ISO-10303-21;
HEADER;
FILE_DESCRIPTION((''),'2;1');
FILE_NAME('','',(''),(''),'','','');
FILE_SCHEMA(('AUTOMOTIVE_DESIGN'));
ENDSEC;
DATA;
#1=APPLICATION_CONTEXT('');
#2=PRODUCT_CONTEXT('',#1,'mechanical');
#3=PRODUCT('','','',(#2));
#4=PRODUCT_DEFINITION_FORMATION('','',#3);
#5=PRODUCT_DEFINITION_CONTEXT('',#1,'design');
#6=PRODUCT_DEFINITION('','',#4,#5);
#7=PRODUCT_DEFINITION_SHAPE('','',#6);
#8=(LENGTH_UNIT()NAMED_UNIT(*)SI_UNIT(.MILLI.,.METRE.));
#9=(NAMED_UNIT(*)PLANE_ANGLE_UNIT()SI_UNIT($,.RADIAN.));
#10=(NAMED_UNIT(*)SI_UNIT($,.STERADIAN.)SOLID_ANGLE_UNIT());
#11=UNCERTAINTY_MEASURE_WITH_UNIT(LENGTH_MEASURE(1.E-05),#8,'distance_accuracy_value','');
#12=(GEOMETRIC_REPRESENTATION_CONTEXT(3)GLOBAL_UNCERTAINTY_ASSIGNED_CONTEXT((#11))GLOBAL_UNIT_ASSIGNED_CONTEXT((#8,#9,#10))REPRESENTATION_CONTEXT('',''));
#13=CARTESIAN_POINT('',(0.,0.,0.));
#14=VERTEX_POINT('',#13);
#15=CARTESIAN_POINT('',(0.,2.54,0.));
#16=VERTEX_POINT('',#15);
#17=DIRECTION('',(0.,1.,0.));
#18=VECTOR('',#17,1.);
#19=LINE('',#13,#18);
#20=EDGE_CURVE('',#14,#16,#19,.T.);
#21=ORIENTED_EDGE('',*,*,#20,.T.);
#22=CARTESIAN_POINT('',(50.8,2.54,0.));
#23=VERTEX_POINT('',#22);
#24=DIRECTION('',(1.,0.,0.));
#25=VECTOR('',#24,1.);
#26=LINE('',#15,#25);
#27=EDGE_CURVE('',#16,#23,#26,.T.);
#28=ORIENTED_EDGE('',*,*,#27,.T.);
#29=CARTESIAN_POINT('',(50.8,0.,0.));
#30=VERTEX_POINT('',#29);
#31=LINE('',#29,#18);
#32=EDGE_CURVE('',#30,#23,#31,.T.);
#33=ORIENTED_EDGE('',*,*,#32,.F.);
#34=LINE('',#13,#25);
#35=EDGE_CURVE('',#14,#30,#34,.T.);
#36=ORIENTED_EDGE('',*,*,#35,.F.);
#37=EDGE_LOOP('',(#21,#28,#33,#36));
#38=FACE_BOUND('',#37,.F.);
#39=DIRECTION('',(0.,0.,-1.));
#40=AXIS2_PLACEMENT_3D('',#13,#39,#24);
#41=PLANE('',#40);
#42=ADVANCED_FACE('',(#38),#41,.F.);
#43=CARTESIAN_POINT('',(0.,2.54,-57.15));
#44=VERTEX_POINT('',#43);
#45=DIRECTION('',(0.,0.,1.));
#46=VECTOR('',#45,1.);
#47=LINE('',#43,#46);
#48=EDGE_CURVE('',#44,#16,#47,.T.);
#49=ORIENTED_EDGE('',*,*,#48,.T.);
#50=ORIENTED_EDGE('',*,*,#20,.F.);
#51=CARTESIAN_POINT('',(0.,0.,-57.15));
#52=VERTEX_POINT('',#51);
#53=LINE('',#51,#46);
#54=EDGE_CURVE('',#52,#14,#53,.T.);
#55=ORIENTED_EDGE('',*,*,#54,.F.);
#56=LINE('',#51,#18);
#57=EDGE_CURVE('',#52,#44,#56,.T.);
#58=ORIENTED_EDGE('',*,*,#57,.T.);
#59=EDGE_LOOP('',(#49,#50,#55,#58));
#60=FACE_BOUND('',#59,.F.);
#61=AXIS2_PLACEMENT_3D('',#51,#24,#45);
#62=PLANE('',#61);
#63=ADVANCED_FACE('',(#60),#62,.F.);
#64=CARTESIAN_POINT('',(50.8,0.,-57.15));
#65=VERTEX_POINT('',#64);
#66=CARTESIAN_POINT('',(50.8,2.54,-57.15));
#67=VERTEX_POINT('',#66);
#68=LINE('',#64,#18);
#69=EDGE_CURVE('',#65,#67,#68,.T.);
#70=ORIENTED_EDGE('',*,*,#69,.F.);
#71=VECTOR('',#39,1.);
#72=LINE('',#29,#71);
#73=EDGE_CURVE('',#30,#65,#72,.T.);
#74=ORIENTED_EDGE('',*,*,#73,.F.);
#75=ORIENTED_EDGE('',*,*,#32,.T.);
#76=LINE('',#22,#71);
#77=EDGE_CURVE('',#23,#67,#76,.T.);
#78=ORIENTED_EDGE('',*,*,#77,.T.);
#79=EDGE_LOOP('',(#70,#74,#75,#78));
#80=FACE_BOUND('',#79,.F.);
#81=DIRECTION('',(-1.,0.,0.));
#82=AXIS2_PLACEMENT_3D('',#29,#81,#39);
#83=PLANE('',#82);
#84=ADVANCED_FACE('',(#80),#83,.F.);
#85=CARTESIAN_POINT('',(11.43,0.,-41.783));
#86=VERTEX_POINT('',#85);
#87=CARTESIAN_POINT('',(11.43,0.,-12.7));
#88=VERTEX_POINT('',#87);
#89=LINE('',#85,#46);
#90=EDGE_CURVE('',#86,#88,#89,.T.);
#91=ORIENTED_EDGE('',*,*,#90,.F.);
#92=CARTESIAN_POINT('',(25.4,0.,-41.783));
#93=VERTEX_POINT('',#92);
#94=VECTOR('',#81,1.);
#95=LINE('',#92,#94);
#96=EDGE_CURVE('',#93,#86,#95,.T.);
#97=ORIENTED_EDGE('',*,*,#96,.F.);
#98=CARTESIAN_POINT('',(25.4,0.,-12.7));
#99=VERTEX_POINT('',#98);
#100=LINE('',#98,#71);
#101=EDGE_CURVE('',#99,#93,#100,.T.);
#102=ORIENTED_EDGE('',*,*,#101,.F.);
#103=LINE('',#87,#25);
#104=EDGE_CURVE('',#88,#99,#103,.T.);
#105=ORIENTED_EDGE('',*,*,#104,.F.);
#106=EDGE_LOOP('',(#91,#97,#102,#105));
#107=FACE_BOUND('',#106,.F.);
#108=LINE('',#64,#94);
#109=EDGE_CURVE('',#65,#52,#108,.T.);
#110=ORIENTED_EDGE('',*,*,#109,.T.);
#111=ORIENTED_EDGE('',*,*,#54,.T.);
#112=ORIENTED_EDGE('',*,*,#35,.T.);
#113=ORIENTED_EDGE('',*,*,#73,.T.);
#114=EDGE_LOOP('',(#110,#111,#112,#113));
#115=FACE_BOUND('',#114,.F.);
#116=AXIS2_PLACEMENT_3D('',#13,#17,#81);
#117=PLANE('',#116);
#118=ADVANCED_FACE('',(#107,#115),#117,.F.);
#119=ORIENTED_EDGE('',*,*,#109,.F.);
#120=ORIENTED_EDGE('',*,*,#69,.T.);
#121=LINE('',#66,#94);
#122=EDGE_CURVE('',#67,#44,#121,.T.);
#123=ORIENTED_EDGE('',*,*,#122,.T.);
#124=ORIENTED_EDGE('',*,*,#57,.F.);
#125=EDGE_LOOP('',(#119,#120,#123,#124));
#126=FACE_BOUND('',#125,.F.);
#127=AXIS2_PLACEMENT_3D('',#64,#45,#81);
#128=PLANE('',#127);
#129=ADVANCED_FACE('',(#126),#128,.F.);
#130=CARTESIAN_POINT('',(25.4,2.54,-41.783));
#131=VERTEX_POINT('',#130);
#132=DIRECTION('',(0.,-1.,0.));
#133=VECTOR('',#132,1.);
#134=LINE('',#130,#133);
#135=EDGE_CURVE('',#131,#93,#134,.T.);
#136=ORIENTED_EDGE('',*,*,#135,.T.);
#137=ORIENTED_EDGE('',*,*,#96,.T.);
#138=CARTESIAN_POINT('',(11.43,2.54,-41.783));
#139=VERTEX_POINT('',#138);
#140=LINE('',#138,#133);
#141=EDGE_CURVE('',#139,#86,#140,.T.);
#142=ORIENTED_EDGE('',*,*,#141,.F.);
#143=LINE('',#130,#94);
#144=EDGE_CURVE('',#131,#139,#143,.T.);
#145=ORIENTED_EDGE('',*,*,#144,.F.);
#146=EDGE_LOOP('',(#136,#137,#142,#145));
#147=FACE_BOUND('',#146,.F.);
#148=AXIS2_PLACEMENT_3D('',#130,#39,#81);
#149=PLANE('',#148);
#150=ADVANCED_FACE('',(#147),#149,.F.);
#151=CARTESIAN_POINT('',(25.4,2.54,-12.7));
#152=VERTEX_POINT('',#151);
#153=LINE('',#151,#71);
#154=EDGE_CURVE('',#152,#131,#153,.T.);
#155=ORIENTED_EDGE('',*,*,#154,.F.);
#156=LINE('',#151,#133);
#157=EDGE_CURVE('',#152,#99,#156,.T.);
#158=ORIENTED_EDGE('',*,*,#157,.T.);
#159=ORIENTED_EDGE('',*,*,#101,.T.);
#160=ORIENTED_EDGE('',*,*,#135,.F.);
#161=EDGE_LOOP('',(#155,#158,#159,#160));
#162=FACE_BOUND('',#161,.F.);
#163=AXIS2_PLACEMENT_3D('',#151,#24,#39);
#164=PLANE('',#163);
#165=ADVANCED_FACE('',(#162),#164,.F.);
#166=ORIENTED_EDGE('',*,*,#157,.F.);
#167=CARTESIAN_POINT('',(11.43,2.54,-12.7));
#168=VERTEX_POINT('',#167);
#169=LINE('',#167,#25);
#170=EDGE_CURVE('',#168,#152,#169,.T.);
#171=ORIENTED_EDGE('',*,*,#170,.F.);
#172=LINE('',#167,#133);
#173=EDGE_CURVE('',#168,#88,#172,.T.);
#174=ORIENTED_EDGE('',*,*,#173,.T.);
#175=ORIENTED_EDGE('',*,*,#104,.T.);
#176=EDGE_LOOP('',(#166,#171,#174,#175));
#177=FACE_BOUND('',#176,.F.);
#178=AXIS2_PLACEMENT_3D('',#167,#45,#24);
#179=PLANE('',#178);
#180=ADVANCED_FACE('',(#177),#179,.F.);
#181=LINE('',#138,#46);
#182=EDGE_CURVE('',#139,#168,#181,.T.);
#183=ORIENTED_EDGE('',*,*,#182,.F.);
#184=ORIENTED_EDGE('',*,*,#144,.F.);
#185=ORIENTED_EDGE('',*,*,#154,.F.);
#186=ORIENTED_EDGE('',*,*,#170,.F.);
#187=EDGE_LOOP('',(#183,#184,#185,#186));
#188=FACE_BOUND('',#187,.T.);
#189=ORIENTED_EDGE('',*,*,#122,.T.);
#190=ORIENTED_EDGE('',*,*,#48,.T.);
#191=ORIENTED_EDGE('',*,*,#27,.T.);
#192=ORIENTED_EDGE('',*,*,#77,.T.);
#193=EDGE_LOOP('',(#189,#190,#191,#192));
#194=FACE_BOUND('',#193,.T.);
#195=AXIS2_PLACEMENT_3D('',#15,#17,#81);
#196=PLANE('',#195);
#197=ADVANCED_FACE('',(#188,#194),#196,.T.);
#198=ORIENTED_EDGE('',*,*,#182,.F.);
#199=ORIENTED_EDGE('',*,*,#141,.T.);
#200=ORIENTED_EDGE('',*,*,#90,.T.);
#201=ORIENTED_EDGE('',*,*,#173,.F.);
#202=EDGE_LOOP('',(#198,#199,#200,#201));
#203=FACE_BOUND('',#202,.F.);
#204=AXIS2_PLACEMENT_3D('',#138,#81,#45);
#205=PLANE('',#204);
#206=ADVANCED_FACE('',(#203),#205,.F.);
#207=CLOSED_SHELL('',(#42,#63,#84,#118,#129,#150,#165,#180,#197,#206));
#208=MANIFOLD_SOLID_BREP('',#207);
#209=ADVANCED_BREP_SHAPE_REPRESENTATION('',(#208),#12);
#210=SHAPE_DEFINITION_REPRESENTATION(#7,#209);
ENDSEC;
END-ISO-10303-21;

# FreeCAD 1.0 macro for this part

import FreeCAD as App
import Part
import Sketcher
from FreeCAD import Vector
Q = App.Units.Quantity


def add_polygon(sketch, points):
    """Adds a closed chain of lines whose ends are joined by coincident constraints."""
    first, n = sketch.GeometryCount, len(points)
    for a, b in zip(points, points[1:] + points[:1]):
        sketch.addGeometry(Part.LineSegment(App.Vector(*a, 0), App.Vector(*b, 0)), False)
    for i in range(n):
        sketch.addConstraint(Sketcher.Constraint("Coincident", first + i, 2, first + (i + 1) % n, 1))

doc = App.newDocument("Part")
params = doc.addObject("Spreadsheet::Sheet", "Params")
for row, (alias, value) in enumerate([
    ("sketch1_width", "2 in"),
    ("sketch1_height", "2.25 in"),
    ("pad1_length", "0.1 in"),
    ("sketch2_width", "0.55 in"),
    ("sketch2_height", "1.145 in"),
    ("pocket1_length", "0.1 in"),
], start=1):
    params.set(f"A{row}", alias)
    params.set(f"B{row}", "=" + value)
    params.setAlias(f"B{row}", alias)

body = doc.addObject("PartDesign::Body", "Body")

# Sketch on XZ plane
sketch1 = body.newObject("Sketcher::SketchObject", "Sketch")
sketch1.AttachmentSupport = (doc.getObject("XZ_Plane"), [""])
sketch1.MapMode = "FlatFace"
add_polygon(sketch1, [(0, -57), (0, 0), (51, 0), (51, -57)])  # lines 0-3
sketch1.addConstraint([
    Sketcher.Constraint("Vertical", 0),
    Sketcher.Constraint("Horizontal", 1),
    Sketcher.Constraint("Vertical", 2),
    Sketcher.Constraint("Horizontal", 3),
    Sketcher.Constraint("Coincident", 0, 2, -1, 1),
    Sketcher.Constraint("DistanceX", 1, 1, 1, 2, Q("2 in")),
    Sketcher.Constraint("DistanceY", 0, 1, 0, 2, Q("2.25 in")),
])
sketch1.setExpression("Constraints[9]", "Params.sketch1_width")
sketch1.setExpression("Constraints[10]", "Params.sketch1_height")
pad1 = body.newObject("PartDesign::Pad", "Pad")
pad1.Profile = sketch1
pad1.setExpression("Length", "Params.pad1_length")
pad1.Reversed = True

# Sketch on XZ plane
sketch2 = body.newObject("Sketcher::SketchObject", "Sketch001")
sketch2.AttachmentSupport = (doc.getObject("XZ_Plane"), [""])
sketch2.MapMode = "FlatFace"
sketch2.AttachmentOffset = App.Placement(Vector(0, 0, -0.1 * 25.4), App.Rotation())
add_polygon(sketch2, [(11, -42), (11, -13), (25, -13), (25, -42)])  # lines 0-3
sketch2.addConstraint([
    Sketcher.Constraint("Vertical", 0),
    Sketcher.Constraint("Horizontal", 1),
    Sketcher.Constraint("Vertical", 2),
    Sketcher.Constraint("Horizontal", 3),
    Sketcher.Constraint("DistanceX", -1, 1, 1, 2, Q("1 in")),
    Sketcher.Constraint("DistanceX", 1, 1, 1, 2, Q("0.55 in")),
    Sketcher.Constraint("DistanceY", 0, 2, -1, 1, Q("0.5 in")),
    Sketcher.Constraint("DistanceY", 0, 1, 0, 2, Q("1.145 in")),
])
sketch2.setExpression("Constraints[9]", "Params.sketch2_width")
sketch2.setExpression("Constraints[11]", "Params.sketch2_height")
pocket1 = body.newObject("PartDesign::Pocket", "Pocket")
pocket1.Profile = sketch2
pocket1.setExpression("Length", "Params.pocket1_length")
pocket1.Reversed = True

doc.recompute()
